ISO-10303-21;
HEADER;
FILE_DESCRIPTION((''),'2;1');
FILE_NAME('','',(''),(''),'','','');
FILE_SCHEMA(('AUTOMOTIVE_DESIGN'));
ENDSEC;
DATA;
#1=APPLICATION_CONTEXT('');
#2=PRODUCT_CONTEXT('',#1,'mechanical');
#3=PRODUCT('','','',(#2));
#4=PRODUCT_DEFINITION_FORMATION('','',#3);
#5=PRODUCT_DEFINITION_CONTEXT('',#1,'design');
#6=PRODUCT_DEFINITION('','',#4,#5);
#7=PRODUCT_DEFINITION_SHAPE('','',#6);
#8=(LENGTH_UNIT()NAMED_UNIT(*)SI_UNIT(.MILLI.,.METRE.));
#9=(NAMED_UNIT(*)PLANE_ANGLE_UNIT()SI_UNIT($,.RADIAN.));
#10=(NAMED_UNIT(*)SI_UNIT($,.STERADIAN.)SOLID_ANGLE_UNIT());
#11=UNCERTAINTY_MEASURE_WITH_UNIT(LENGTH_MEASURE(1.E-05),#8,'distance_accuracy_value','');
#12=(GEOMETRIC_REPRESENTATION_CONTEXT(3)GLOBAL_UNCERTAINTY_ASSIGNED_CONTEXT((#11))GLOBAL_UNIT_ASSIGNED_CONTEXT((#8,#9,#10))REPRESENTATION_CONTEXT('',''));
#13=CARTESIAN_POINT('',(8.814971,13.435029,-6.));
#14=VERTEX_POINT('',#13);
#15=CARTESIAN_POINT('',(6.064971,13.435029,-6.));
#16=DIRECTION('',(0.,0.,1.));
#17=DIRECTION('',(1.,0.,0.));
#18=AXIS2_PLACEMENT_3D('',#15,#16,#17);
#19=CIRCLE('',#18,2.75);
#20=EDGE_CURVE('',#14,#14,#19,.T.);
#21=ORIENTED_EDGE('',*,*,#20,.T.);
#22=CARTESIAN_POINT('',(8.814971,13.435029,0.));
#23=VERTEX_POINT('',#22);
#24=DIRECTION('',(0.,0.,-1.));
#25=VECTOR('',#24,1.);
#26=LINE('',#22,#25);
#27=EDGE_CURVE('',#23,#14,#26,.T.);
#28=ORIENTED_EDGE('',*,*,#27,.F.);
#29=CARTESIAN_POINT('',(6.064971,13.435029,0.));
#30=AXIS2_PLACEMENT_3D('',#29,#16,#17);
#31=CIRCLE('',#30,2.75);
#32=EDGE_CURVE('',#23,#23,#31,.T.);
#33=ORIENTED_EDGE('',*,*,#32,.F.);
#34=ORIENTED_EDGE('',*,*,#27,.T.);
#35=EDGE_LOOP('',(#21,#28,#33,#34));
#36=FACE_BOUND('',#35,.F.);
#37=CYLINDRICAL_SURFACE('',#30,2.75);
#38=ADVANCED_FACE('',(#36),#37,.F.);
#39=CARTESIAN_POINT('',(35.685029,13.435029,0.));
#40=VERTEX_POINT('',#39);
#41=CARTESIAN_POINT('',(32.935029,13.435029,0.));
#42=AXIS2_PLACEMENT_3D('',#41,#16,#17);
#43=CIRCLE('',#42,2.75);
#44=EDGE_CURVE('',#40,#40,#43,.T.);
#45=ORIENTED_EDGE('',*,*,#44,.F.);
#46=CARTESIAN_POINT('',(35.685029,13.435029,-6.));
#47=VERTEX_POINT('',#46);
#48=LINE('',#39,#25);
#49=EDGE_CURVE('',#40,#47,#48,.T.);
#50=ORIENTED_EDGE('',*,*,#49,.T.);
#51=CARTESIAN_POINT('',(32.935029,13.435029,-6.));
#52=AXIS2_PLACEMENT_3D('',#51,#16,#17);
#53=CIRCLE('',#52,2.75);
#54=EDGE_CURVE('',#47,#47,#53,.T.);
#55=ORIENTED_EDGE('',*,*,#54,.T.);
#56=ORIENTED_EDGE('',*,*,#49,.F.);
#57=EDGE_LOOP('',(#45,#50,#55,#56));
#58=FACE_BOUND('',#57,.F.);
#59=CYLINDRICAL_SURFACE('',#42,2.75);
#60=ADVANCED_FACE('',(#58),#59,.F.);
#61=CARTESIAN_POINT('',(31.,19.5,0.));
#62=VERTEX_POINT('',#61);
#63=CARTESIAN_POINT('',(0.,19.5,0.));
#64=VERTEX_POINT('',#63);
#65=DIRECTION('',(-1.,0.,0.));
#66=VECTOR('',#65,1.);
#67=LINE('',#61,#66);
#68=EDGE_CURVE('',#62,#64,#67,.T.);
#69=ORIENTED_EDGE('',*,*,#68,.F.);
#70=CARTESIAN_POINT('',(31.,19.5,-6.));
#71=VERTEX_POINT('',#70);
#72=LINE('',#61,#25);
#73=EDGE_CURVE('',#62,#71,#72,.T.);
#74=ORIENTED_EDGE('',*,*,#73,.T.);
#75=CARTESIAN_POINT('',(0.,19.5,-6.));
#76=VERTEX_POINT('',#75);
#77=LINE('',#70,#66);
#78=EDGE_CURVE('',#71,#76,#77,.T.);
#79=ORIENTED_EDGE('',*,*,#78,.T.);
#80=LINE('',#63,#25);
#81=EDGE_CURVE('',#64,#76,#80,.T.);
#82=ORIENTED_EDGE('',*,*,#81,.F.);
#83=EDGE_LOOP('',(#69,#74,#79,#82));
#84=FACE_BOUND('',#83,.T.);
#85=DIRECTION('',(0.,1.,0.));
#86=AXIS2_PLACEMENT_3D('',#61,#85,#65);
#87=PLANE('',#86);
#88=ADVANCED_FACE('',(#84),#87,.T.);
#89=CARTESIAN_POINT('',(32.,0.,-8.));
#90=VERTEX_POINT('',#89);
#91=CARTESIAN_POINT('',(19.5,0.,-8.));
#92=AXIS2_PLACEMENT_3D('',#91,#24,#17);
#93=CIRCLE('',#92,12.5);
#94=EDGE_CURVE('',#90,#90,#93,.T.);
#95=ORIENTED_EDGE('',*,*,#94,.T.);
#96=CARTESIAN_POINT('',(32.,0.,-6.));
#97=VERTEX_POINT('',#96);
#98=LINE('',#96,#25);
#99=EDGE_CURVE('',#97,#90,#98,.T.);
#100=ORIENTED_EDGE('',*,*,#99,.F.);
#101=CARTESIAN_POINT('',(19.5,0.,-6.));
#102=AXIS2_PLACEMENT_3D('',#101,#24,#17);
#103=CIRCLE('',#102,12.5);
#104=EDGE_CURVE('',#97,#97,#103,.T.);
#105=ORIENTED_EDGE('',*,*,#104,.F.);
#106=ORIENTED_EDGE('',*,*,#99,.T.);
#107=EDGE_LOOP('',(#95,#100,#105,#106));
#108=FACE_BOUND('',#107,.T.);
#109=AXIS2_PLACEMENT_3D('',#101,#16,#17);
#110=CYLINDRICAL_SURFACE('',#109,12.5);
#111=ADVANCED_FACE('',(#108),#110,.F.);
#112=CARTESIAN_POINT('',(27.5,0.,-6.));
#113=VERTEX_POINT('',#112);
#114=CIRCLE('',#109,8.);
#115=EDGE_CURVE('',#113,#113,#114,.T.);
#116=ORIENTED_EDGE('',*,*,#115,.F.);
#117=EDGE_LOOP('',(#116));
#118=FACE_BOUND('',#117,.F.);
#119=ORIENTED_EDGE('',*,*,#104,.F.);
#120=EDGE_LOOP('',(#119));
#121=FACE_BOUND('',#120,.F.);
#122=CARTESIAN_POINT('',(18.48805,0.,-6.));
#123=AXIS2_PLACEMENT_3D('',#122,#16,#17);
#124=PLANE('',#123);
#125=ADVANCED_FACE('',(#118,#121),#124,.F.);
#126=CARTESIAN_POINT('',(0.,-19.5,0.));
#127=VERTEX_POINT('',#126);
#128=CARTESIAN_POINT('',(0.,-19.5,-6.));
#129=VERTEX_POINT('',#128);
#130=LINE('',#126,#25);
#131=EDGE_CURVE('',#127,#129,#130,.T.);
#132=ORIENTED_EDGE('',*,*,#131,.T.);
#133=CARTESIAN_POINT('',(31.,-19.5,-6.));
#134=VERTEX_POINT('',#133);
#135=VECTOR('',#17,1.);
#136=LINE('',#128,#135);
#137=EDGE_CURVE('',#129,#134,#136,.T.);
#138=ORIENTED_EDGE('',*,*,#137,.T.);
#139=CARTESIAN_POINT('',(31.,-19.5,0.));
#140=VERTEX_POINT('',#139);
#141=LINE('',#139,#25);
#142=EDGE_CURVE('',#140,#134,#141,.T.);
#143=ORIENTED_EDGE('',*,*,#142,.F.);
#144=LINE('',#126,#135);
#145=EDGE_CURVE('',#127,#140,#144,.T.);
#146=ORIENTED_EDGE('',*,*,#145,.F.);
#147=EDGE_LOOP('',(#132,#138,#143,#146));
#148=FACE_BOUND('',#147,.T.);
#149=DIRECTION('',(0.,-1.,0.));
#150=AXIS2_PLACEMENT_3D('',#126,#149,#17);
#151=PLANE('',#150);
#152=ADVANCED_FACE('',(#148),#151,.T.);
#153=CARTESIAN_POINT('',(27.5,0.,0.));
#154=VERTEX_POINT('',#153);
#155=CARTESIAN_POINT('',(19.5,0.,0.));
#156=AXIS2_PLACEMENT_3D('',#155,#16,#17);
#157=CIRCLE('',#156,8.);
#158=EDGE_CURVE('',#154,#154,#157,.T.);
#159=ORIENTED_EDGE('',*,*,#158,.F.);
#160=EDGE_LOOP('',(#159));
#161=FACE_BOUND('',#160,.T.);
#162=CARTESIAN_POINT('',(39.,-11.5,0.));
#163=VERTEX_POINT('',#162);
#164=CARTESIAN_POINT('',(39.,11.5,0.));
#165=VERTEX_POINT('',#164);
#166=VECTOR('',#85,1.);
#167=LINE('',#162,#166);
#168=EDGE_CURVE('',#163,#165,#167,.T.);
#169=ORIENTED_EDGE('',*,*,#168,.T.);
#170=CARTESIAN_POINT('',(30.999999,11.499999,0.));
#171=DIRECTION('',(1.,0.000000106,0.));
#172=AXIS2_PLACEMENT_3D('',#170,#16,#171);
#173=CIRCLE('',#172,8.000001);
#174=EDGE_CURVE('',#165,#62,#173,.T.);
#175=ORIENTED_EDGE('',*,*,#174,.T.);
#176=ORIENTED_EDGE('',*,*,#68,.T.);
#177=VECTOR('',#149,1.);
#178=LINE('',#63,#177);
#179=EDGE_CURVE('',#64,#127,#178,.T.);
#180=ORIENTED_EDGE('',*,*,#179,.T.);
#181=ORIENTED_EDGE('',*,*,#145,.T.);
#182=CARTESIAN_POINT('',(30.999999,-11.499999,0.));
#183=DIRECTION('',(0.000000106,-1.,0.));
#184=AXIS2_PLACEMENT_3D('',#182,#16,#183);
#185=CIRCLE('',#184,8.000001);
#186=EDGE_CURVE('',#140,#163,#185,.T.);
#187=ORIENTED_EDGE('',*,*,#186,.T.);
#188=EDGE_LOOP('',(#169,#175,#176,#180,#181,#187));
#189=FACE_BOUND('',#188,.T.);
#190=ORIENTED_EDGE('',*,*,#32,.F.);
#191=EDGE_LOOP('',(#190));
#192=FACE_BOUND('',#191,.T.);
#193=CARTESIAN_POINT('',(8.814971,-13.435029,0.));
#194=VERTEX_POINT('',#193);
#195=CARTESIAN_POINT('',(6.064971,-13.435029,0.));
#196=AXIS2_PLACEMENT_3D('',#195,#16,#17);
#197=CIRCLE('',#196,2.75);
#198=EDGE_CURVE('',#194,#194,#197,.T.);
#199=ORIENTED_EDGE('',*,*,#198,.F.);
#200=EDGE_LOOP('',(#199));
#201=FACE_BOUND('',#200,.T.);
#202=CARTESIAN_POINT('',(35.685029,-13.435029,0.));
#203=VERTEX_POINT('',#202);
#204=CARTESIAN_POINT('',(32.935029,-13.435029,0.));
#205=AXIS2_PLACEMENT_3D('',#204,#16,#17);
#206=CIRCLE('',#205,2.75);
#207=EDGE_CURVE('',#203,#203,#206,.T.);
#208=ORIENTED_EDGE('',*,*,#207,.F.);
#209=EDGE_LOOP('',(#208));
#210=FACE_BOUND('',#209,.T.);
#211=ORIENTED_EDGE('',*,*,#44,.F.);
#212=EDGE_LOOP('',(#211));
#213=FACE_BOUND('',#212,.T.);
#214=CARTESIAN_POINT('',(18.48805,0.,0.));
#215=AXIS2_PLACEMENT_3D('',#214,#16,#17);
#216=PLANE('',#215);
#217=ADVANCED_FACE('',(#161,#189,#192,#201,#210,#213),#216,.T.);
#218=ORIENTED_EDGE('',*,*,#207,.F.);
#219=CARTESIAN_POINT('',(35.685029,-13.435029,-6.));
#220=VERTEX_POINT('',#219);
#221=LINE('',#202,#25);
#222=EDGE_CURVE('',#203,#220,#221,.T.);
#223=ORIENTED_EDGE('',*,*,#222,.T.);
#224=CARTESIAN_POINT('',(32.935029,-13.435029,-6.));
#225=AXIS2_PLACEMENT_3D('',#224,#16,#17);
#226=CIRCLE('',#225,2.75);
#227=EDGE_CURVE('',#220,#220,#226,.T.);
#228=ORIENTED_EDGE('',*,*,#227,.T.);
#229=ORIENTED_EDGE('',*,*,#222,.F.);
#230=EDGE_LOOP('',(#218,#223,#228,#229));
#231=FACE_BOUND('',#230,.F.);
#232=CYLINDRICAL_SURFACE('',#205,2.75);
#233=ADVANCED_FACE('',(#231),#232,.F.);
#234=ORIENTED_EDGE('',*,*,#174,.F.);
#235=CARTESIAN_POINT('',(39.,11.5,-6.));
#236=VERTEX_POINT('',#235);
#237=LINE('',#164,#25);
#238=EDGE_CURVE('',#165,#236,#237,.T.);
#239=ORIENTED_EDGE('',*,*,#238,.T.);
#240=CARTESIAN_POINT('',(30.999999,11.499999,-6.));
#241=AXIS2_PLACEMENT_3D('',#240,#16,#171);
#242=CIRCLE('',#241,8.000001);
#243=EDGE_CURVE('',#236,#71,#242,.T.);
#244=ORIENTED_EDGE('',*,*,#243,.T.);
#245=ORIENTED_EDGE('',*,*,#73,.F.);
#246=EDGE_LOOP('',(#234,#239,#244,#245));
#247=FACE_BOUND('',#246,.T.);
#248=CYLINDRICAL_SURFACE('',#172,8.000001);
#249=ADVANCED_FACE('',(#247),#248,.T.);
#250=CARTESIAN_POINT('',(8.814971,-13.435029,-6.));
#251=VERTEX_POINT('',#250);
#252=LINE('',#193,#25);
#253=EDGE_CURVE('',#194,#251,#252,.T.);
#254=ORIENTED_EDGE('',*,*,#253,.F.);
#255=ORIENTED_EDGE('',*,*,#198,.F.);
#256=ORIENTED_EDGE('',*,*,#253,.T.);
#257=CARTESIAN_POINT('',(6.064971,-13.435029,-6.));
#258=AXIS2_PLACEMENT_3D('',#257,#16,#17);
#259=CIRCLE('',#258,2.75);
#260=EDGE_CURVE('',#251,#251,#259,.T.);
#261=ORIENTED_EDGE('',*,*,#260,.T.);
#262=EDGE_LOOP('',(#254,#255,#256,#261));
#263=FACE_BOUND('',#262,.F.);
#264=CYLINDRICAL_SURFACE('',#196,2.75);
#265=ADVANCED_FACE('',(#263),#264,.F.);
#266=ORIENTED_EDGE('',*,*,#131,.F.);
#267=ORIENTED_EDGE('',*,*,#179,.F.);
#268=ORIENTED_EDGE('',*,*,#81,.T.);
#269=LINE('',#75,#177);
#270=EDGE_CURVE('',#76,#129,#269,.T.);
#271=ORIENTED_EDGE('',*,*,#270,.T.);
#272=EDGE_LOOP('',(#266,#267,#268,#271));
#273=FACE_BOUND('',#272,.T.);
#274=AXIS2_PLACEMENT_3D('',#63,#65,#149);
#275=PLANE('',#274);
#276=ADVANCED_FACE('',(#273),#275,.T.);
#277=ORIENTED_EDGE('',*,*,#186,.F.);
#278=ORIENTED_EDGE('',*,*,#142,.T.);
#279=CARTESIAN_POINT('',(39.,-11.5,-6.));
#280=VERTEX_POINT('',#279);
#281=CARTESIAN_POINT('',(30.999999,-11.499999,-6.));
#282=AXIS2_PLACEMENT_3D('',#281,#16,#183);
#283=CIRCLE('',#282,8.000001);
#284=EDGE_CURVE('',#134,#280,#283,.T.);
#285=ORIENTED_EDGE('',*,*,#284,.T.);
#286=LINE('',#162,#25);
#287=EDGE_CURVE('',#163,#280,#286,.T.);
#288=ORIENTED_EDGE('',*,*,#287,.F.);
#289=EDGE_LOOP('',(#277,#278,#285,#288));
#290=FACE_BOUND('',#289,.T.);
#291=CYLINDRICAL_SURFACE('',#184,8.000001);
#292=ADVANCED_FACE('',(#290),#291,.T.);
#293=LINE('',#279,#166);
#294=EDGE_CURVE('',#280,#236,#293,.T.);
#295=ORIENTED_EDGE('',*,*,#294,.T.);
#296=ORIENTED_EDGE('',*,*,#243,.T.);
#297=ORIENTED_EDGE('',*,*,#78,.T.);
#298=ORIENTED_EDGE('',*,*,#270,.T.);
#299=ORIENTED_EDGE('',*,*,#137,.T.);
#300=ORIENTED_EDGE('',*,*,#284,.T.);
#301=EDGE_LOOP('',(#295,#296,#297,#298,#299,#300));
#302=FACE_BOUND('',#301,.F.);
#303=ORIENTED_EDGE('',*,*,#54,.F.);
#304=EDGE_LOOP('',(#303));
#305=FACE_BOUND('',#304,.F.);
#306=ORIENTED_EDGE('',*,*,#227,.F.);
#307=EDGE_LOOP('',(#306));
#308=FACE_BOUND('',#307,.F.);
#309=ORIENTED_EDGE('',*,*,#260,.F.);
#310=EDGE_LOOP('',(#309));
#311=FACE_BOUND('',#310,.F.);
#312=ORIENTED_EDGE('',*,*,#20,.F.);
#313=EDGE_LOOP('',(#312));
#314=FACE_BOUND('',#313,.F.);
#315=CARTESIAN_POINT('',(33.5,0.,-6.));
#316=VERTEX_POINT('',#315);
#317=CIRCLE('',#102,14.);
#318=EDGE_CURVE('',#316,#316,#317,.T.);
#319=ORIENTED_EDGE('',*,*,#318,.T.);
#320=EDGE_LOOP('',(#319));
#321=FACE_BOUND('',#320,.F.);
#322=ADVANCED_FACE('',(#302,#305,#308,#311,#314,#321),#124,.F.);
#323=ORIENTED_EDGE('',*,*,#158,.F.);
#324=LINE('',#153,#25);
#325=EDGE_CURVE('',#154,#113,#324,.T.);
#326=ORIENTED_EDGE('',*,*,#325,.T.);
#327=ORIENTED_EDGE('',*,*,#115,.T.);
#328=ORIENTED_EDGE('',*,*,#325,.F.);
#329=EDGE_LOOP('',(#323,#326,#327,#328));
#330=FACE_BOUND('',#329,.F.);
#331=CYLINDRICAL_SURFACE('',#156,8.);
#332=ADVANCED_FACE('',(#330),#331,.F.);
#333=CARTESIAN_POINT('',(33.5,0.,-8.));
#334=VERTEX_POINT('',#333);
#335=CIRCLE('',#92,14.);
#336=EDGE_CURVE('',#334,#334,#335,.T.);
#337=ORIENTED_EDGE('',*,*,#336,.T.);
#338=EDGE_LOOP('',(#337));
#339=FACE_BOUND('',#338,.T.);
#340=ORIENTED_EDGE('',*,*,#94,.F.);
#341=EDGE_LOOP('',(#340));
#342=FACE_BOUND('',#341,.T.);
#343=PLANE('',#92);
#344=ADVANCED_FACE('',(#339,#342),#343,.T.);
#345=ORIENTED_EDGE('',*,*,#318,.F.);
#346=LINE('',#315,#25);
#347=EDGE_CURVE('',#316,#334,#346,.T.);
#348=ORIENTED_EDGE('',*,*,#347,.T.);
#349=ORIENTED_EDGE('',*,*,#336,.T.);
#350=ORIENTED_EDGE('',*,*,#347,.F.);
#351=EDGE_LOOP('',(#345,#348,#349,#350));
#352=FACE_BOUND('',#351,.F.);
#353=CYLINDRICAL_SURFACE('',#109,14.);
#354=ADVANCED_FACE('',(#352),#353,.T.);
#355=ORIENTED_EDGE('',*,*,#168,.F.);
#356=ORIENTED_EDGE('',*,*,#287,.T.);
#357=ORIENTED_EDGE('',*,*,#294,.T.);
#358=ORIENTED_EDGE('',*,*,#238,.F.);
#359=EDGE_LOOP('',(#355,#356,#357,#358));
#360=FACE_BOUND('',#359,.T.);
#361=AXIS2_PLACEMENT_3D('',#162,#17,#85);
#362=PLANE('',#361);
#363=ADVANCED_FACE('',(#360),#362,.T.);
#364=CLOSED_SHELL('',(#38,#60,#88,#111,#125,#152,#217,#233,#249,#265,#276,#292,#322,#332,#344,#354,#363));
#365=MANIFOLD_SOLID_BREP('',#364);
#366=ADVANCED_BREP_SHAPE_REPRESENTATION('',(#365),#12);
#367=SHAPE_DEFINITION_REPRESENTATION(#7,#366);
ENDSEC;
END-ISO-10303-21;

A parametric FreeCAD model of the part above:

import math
import FreeCAD as App
import Part
import Sketcher

V = App.Vector

doc = App.newDocument("Part")
body = doc.addObject("PartDesign::Body", "Body")

# Sketch on XY plane
sketch1 = body.newObject("Sketcher::SketchObject", "Sketch")
sketch1.AttachmentSupport = (doc.getObject("XY_Plane"), [""])
sketch1.MapMode = "FlatFace"
sketch1.addGeometry([
    Part.LineSegment(V(0, 19.5, 0), V(0, -19.5, 0)),  # 0
    Part.LineSegment(V(0, -19.5, 0), V(31, -19.5, 0)),  # 1
    Part.ArcOfCircle(Part.Circle(V(30.999999, -11.499999, 0), V(0, 0, 1), 8.000001), math.radians(-89.999994), math.radians(-0.000006)),  # 2
    Part.LineSegment(V(39, -11.5, 0), V(39, 11.5, 0)),  # 3
    Part.ArcOfCircle(Part.Circle(V(30.999999, 11.499999, 0), V(0, 0, 1), 8.000001), math.radians(0.000006), math.radians(89.999994)),  # 4
    Part.LineSegment(V(31, 19.5, 0), V(0, 19.5, 0)),  # 5
    Part.Circle(V(6.064971, -13.435029, 0), V(0, 0, 1), 2.75),  # 6
    Part.Circle(V(32.935029, -13.435029, 0), V(0, 0, 1), 2.75),  # 7
    Part.Circle(V(6.064971, 13.435029, 0), V(0, 0, 1), 2.75),  # 8
    Part.Circle(V(19.5, 0, 0), V(0, 0, 1), 8),  # 9
    Part.Circle(V(32.935029, 13.435029, 0), V(0, 0, 1), 2.75),  # 10
], False)
sketch1.addConstraint([
    Sketcher.Constraint("Coincident", 0, 2, 1, 1),
    Sketcher.Constraint("Tangent", 1, 2, 2, 1),
    Sketcher.Constraint("Tangent", 2, 2, 3, 1),
    Sketcher.Constraint("Tangent", 3, 2, 4, 1),
    Sketcher.Constraint("Tangent", 4, 2, 5, 1),
    Sketcher.Constraint("Coincident", 5, 2, 0, 1),
    Sketcher.Constraint("Vertical", 0),
    Sketcher.Constraint("Horizontal", 1),
    Sketcher.Constraint("Vertical", 3),
    Sketcher.Constraint("Horizontal", 5),
    Sketcher.Constraint("Equal", 2, 4),
    Sketcher.Constraint("Equal", 6, 7),
    Sketcher.Constraint("Equal", 7, 8),
    Sketcher.Constraint("Equal", 4, 9),
    Sketcher.Constraint("Equal", 8, 10),
    Sketcher.Constraint("Symmetric", 0, 2, 5, 2, -1, 1),
    Sketcher.Constraint("Symmetric", 6, 3, 8, 3, -1),
    Sketcher.Constraint("Symmetric", 7, 3, 10, 3, -1),
    Sketcher.Constraint("PointOnObject", 9, 3, -1),
    Sketcher.Constraint("Horizontal", 6, 3, 7, 3),
    Sketcher.Constraint("Diameter", 9, 16.0),
    Sketcher.Constraint("Diameter", 6, 5.5),
    Sketcher.Constraint("DistanceX", 1, 1, 1, 2, 31.0),
    Sketcher.Constraint("DistanceY", 0, 2, 0, 1, 39.0),
    Sketcher.Constraint("DistanceX", -1, 1, 9, 3, 19.5),
    Sketcher.Constraint("DistanceX", -1, 1, 6, 3, 6.064971),
    Sketcher.Constraint("DistanceY", 6, 3, -1, 1, 13.435029),
    Sketcher.Constraint("DistanceX", -1, 1, 7, 3, 32.935029),
])
pad1 = body.newObject("PartDesign::Pad", "Pad")
pad1.Profile = sketch1
pad1.Length = 6
pad1.Reversed = True

# Sketch on XY plane
sketch2 = body.newObject("Sketcher::SketchObject", "Sketch001")
sketch2.AttachmentSupport = (doc.getObject("XY_Plane"), [""])
sketch2.MapMode = "FlatFace"
sketch2.AttachmentOffset = App.Placement(V(0, 0, -6), App.Rotation())
sketch2.addGeometry([
    Part.Circle(V(19.5, 0, 0), V(0, 0, 1), 14),
    Part.Circle(V(19.5, 0, 0), V(0, 0, 1), 12.5),
], False)
sketch2.addConstraint([
    Sketcher.Constraint("Coincident", 1, 3, 0, 3),
    Sketcher.Constraint("PointOnObject", 0, 3, -1),
    Sketcher.Constraint("Diameter", 0, 28.0),
    Sketcher.Constraint("Diameter", 1, 25.0),
    Sketcher.Constraint("DistanceX", -1, 1, 0, 3, 19.5),
])
pad2 = body.newObject("PartDesign::Pad", "Pad001")
pad2.Profile = sketch2
pad2.Length = 2
pad2.Reversed = True

doc.recompute()
